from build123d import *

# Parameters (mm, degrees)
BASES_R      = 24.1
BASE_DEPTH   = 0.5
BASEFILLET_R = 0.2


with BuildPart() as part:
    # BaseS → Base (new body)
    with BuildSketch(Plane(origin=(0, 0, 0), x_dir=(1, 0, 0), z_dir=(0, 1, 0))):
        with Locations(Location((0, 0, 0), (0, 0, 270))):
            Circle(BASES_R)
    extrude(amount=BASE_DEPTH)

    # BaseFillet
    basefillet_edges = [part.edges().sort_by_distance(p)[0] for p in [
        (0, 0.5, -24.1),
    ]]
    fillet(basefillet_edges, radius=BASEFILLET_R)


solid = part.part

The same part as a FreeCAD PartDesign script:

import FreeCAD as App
import Part
import Sketcher

V = App.Vector
Q = App.Units.Quantity


def edges_at(feature, points):
    """Names of the edges that pass closest to the given points."""
    edges = feature.Shape.Edges
    near = lambda p: min(range(len(edges)), key=lambda i: edges[i].distToShape(Part.Vertex(*p))[0])
    return sorted({f"Edge{near(p) + 1}" for p in points})

doc = App.newDocument("Part")
body = doc.addObject("PartDesign::Body", "Body")

# Sketch on XZ plane
sketch1 = doc.addObject("Sketcher::SketchObject", "Sketch")
body.addObject(sketch1)
sketch1.AttachmentSupport = (doc.XZ_Plane, [""])
sketch1.MapMode = "FlatFace"
sketch1.addGeometry(Part.Circle(V(0, 0, 0), V(0, 0, 1), 24), False)
sketch1.addConstraint([
    Sketcher.Constraint("Coincident", 0, 3, -1, 1),
    Sketcher.Constraint("Diameter", 0, Q("48.2 mm")),
])
pad1 = doc.addObject("PartDesign::Pad", "Pad")
body.addObject(pad1)
pad1.Profile = sketch1
pad1.Length = 0.5
pad1.Reversed = True
doc.recompute()

fillet = doc.addObject("PartDesign::Fillet", "Fillet")
body.addObject(fillet)
fillet.Base = (pad1, edges_at(pad1, [(0, 0.5, -24.1)]))
fillet.Radius = 0.2

doc.recompute()
